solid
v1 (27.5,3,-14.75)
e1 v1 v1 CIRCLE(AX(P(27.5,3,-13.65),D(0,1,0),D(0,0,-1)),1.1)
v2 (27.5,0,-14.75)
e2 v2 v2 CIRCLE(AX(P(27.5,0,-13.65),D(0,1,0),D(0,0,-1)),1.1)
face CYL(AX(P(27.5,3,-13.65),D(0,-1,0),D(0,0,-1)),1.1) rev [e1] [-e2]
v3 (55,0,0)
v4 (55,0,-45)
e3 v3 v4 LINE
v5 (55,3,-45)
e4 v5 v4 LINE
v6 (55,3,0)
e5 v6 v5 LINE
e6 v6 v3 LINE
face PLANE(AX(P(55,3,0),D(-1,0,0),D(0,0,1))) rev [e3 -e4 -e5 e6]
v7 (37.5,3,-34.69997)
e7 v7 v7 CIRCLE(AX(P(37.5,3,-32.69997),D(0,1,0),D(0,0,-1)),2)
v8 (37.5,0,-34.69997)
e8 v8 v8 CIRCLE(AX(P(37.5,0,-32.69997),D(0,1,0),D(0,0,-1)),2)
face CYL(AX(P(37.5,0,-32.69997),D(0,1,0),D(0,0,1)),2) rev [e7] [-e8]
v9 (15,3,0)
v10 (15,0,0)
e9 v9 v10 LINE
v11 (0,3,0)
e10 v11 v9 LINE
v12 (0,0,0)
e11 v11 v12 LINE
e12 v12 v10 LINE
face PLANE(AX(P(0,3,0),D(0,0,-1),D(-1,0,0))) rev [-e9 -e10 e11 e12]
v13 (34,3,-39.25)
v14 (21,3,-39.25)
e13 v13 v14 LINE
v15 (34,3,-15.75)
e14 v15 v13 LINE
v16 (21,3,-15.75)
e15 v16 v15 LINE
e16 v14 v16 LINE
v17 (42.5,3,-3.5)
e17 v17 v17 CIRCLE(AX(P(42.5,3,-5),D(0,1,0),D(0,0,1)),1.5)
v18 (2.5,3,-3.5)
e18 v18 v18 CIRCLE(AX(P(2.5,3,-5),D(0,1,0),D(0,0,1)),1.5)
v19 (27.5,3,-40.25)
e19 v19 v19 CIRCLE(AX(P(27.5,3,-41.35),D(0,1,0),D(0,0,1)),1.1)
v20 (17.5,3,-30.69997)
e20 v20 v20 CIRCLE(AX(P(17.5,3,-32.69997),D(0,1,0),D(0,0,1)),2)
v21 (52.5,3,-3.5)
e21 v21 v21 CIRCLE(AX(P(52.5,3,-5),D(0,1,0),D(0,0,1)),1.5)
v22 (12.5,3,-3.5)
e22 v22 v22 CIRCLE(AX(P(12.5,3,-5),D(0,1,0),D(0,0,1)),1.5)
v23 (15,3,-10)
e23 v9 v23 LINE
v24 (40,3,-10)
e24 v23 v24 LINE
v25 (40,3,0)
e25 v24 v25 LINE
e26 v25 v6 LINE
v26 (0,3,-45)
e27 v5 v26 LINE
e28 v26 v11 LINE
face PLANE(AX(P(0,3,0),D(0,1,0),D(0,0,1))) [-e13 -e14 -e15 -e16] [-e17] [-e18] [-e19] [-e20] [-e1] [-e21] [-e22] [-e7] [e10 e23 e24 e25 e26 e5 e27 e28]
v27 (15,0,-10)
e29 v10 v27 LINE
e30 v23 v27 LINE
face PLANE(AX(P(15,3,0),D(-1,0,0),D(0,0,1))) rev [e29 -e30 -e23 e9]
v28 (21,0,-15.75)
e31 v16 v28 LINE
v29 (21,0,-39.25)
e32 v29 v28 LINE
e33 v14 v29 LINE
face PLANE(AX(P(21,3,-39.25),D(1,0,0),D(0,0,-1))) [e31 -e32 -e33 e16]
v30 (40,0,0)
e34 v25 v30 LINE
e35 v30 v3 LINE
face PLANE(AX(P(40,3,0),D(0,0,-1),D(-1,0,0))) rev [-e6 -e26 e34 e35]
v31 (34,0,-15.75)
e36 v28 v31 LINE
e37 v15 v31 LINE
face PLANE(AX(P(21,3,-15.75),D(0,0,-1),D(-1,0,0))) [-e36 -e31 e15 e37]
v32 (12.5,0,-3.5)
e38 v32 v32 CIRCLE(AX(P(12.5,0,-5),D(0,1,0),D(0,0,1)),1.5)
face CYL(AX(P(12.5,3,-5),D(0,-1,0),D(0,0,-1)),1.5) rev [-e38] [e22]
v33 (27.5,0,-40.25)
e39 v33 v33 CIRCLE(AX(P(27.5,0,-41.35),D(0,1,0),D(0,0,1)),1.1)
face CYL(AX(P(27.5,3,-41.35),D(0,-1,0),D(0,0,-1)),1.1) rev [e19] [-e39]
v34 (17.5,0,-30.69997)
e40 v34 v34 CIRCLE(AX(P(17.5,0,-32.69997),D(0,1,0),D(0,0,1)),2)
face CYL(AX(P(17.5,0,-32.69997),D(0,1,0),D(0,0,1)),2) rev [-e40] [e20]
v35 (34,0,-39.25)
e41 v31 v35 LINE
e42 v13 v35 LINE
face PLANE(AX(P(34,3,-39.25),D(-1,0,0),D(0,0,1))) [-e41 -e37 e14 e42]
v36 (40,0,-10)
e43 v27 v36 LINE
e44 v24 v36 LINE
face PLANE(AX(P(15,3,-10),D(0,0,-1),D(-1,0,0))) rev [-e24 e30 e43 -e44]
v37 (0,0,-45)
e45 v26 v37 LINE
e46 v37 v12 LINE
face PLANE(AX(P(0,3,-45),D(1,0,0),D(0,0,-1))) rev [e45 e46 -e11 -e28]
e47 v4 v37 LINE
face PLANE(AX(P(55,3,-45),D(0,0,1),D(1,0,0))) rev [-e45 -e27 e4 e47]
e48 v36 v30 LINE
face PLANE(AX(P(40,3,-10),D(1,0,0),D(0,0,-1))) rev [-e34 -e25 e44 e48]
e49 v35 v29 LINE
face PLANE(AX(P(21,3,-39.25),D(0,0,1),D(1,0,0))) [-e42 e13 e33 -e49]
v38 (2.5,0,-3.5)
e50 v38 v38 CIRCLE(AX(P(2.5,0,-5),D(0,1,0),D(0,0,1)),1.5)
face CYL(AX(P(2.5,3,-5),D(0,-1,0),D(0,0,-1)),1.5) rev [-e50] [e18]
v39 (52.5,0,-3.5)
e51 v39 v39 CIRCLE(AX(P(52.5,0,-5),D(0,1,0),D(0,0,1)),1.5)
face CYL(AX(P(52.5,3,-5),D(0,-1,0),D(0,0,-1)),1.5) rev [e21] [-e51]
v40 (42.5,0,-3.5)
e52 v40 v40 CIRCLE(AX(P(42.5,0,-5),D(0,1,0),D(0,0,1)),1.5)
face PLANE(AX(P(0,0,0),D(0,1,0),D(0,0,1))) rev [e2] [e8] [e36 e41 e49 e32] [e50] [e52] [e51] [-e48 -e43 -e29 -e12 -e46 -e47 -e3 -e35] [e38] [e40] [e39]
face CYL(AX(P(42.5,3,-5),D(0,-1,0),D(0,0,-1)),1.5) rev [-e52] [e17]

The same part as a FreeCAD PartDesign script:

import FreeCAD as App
import Part
import Sketcher
Q = App.Units.Quantity

doc = App.newDocument("Part")
params = doc.addObject("Spreadsheet::Sheet", "Params")
for row, (alias, value) in enumerate([
    ("sketch1_diameter", "3 mm"),
    ("sketch1_diameter2", "2.2 mm"),
    ("sketch1_width", "15 mm"),
    ("sketch1_width2", "25 mm"),
    ("sketch1_width3", "13 mm"),
    ("pad1_length", "3 mm"),
    ("sketch2_diameter", "4 mm"),
], start=1):
    params.set(f"A{row}", alias)
    params.set(f"B{row}", "=" + value)
    params.setAlias(f"B{row}", alias)

body = doc.addObject("PartDesign::Body", "Body")

sketch1 = body.newObject("Sketcher::SketchObject", "Sketch")
sketch1.AttachmentSupport = (doc.getObject("XZ_Plane"), [""])
sketch1.MapMode = "FlatFace"
sketch1.addGeometry(Part.LineSegment(App.Vector(0, 0, 0), App.Vector(15, 0, 0)), False)
sketch1.addGeometry(Part.LineSegment(App.Vector(15, 0, 0), App.Vector(15, -10, 0)), False)
sketch1.addGeometry(Part.LineSegment(App.Vector(15, -10, 0), App.Vector(40, -10, 0)), False)
sketch1.addGeometry(Part.LineSegment(App.Vector(40, -10, 0), App.Vector(40, 0, 0)), False)
sketch1.addGeometry(Part.LineSegment(App.Vector(40, 0, 0), App.Vector(55, 0, 0)), False)
sketch1.addGeometry(Part.LineSegment(App.Vector(55, 0, 0), App.Vector(55, -45, 0)), False)
sketch1.addGeometry(Part.LineSegment(App.Vector(55, -45, 0), App.Vector(0, -45, 0)), False)
sketch1.addGeometry(Part.LineSegment(App.Vector(0, -45, 0), App.Vector(0, 0, 0)), False)
sketch1.addGeometry(Part.Circle(App.Vector(2.5, -5, 0), App.Vector(0, 0, 1), 1.5), False)
sketch1.addGeometry(Part.Circle(App.Vector(12.5, -5, 0), App.Vector(0, 0, 1), 1.5), False)
sketch1.addGeometry(Part.Circle(App.Vector(42.5, -5, 0), App.Vector(0, 0, 1), 1.5), False)
sketch1.addGeometry(Part.Circle(App.Vector(52.5, -5, 0), App.Vector(0, 0, 1), 1.5), False)
sketch1.addGeometry(Part.Circle(App.Vector(27.5, -13.7, 0), App.Vector(0, 0, 1), 1.1), False)
sketch1.addGeometry(Part.LineSegment(App.Vector(34, -15.8, 0), App.Vector(21, -15.8, 0)), False)
sketch1.addGeometry(Part.LineSegment(App.Vector(21, -15.8, 0), App.Vector(21, -39.2, 0)), False)
sketch1.addGeometry(Part.LineSegment(App.Vector(21, -39.2, 0), App.Vector(34, -39.2, 0)), False)
sketch1.addGeometry(Part.LineSegment(App.Vector(34, -39.2, 0), App.Vector(34, -15.8, 0)), False)
sketch1.addGeometry(Part.Circle(App.Vector(27.5, -41.4, 0), App.Vector(0, 0, 1), 1.1), False)
sketch1.addConstraint(Sketcher.Constraint("Coincident", 0, 2, 1, 1))
sketch1.addConstraint(Sketcher.Constraint("Coincident", 1, 2, 2, 1))
sketch1.addConstraint(Sketcher.Constraint("Coincident", 2, 2, 3, 1))
sketch1.addConstraint(Sketcher.Constraint("Coincident", 3, 2, 4, 1))
sketch1.addConstraint(Sketcher.Constraint("Coincident", 4, 2, 5, 1))
sketch1.addConstraint(Sketcher.Constraint("Coincident", 5, 2, 6, 1))
sketch1.addConstraint(Sketcher.Constraint("Coincident", 6, 2, 7, 1))
sketch1.addConstraint(Sketcher.Constraint("Coincident", 7, 2, 0, 1))
sketch1.addConstraint(Sketcher.Constraint("Coincident", 13, 2, 14, 1))
sketch1.addConstraint(Sketcher.Constraint("Coincident", 14, 2, 15, 1))
sketch1.addConstraint(Sketcher.Constraint("Coincident", 15, 2, 16, 1))
sketch1.addConstraint(Sketcher.Constraint("Coincident", 16, 2, 13, 1))
sketch1.addConstraint(Sketcher.Constraint("Horizontal", 0))
sketch1.addConstraint(Sketcher.Constraint("Vertical", 1))
sketch1.addConstraint(Sketcher.Constraint("Horizontal", 2))
sketch1.addConstraint(Sketcher.Constraint("Vertical", 3))
sketch1.addConstraint(Sketcher.Constraint("Horizontal", 4))
sketch1.addConstraint(Sketcher.Constraint("Vertical", 5))
sketch1.addConstraint(Sketcher.Constraint("Horizontal", 6))
sketch1.addConstraint(Sketcher.Constraint("Vertical", 7))
sketch1.addConstraint(Sketcher.Constraint("Horizontal", 13))
sketch1.addConstraint(Sketcher.Constraint("Vertical", 14))
sketch1.addConstraint(Sketcher.Constraint("Horizontal", 15))
sketch1.addConstraint(Sketcher.Constraint("Vertical", 16))
sketch1.addConstraint(Sketcher.Constraint("Coincident", 7, 2, -1, 1))
sketch1.addConstraint(Sketcher.Constraint("Equal", 8, 9))
sketch1.addConstraint(Sketcher.Constraint("Equal", 9, 10))
sketch1.addConstraint(Sketcher.Constraint("Equal", 10, 11))
sketch1.addConstraint(Sketcher.Constraint("Equal", 12, 17))
sketch1.addConstraint(Sketcher.Constraint("PointOnObject", 3, 2, -1))
sketch1.addConstraint(Sketcher.Constraint("Horizontal", 8, 3, 9, 3))
sketch1.addConstraint(Sketcher.Constraint("Horizontal", 9, 3, 10, 3))
sketch1.addConstraint(Sketcher.Constraint("Horizontal", 10, 3, 11, 3))
sketch1.addConstraint(Sketcher.Constraint("Vertical", 12, 3, 17, 3))
sketch1.addConstraint(Sketcher.Constraint("Equal", 0, 4))
sketch1.addConstraint(Sketcher.Constraint("Diameter", 8, Q("3 mm")))
sketch1.addConstraint(Sketcher.Constraint("Diameter", 12, Q("2.2 mm")))
sketch1.addConstraint(Sketcher.Constraint("DistanceX", 0, 1, 0, 2, Q("15 mm")))
sketch1.addConstraint(Sketcher.Constraint("DistanceX", 2, 1, 2, 2, Q("25 mm")))
sketch1.addConstraint(Sketcher.Constraint("DistanceX", 13, 2, 13, 1, Q("13 mm")))
sketch1.addConstraint(Sketcher.Constraint("DistanceY", 1, 2, 1, 1, Q("10 mm")))
sketch1.addConstraint(Sketcher.Constraint("DistanceY", 5, 2, 5, 1, Q("45 mm")))
sketch1.addConstraint(Sketcher.Constraint("DistanceY", 14, 2, 14, 1, Q("23.5 mm")))
sketch1.addConstraint(Sketcher.Constraint("DistanceY", 8, 3, -1, 1, Q("5 mm")))
sketch1.addConstraint(Sketcher.Constraint("DistanceX", -1, 1, 13, 2, Q("21 mm")))
sketch1.addConstraint(Sketcher.Constraint("DistanceX", 8, 3, 9, 3, Q("10 mm")))
sketch1.addConstraint(Sketcher.Constraint("DistanceX", 9, 3, 10, 3, Q("30 mm")))
sketch1.addConstraint(Sketcher.Constraint("DistanceX", 10, 3, 11, 3, Q("10 mm")))
sketch1.addConstraint(Sketcher.Constraint("DistanceX", 9, 3, 12, 3, Q("15 mm")))
sketch1.addConstraint(Sketcher.Constraint("DistanceX", -1, 1, 8, 3, Q("2.5 mm")))
sketch1.addConstraint(Sketcher.Constraint("DistanceY", 17, 3, 12, 3, Q("27.7 mm")))
sketch1.addConstraint(Sketcher.Constraint("DistanceY", 13, 2, 12, 3, Q("2.1 mm")))
sketch1.addConstraint(Sketcher.Constraint("DistanceY", 12, 3, -1, 1, Q("13.65 mm")))
sketch1.setExpression("Constraints[35]", "Params.sketch1_diameter")
sketch1.setExpression("Constraints[36]", "Params.sketch1_diameter2")
sketch1.setExpression("Constraints[37]", "Params.sketch1_width")
sketch1.setExpression("Constraints[38]", "Params.sketch1_width2")
sketch1.setExpression("Constraints[39]", "Params.sketch1_width3")
pad1 = body.newObject("PartDesign::Pad", "Pad")
pad1.Profile = sketch1
pad1.setExpression("Length", "Params.pad1_length")
pad1.Reversed = True

sketch2 = body.newObject("Sketcher::SketchObject", "Sketch001")
sketch2.AttachmentSupport = (doc.getObject("XZ_Plane"), [""])
sketch2.MapMode = "FlatFace"
sketch2.AttachmentOffset = App.Placement(App.Vector(0, 0, -3), App.Rotation())
sketch2.addGeometry(Part.Circle(App.Vector(17.5, -32.69997, 0), App.Vector(0, 0, 1), 2), False)
sketch2.addGeometry(Part.Circle(App.Vector(37.5, -32.69997, 0), App.Vector(0, 0, 1), 2), False)
sketch2.addConstraint(Sketcher.Constraint("Equal", 0, 1))
sketch2.addConstraint(Sketcher.Constraint("Horizontal", 0, 3, 1, 3))
sketch2.addConstraint(Sketcher.Constraint("Diameter", 0, Q("4 mm")))
sketch2.addConstraint(Sketcher.Constraint("DistanceX", 0, 3, 1, 3, Q("20 mm")))
sketch2.addConstraint(Sketcher.Constraint("DistanceX", -1, 1, 0, 3, Q("17.5 mm")))
sketch2.addConstraint(Sketcher.Constraint("DistanceY", 0, 3, -1, 1, Q("32.69997 mm")))
sketch2.setExpression("Constraints[2]", "Params.sketch2_diameter")
pocket1 = body.newObject("PartDesign::Pocket", "Pocket")
pocket1.Profile = sketch2
pocket1.Type = "ThroughAll"
pocket1.Reversed = True

doc.recompute()
